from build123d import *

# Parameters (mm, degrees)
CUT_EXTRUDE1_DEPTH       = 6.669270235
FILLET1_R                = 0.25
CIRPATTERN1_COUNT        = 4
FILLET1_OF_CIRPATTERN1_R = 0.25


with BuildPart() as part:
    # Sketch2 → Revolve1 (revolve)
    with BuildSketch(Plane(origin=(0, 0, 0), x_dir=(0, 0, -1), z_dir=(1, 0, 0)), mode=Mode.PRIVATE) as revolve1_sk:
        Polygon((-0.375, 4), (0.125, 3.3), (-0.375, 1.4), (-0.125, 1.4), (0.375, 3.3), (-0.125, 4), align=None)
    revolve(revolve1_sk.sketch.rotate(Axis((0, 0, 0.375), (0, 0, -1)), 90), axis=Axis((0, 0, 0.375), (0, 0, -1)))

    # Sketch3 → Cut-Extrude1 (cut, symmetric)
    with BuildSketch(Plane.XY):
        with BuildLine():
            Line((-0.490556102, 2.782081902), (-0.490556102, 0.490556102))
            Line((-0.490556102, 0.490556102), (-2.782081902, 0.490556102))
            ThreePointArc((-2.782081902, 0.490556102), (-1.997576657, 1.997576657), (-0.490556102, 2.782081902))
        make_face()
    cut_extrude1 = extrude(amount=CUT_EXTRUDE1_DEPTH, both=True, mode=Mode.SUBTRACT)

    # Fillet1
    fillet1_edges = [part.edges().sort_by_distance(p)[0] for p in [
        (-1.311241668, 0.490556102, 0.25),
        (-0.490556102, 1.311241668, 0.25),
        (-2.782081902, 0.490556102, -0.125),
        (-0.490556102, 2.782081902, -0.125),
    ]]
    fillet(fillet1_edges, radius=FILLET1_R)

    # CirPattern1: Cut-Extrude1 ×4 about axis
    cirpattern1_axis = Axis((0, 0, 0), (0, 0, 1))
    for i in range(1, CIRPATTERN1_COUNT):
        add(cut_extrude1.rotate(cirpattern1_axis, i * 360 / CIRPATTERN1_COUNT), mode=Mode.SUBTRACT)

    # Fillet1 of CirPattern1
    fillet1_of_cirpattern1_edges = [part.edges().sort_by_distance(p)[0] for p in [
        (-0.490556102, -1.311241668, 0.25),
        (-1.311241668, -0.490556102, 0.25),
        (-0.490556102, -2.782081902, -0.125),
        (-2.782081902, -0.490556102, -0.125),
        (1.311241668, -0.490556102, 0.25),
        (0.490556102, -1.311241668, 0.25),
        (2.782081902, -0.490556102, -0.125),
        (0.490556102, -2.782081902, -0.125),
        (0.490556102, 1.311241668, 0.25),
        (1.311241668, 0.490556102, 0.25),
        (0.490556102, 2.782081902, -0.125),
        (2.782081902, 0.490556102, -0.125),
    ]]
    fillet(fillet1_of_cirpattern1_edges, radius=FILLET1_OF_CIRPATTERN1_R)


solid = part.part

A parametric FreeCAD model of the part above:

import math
import FreeCAD as App
import Part
import Sketcher
Q = App.Units.Quantity


def edges_at(feature, points):
    """Names of the edges that pass closest to the given points."""
    edges = feature.Shape.Edges
    near = lambda p: min(range(len(edges)), key=lambda i: edges[i].distToShape(Part.Vertex(*p))[0])
    return sorted({f"Edge{near(p) + 1}" for p in points})

doc = App.newDocument("Part")
body = doc.addObject("PartDesign::Body", "Body")

sketch1 = doc.addObject("Sketcher::SketchObject", "Sketch")
body.addObject(sketch1)
sketch1.AttachmentSupport = (doc.YZ_Plane, [""])
sketch1.MapMode = "FlatFace"
sketch1.addGeometry([
    Part.LineSegment(App.Vector(4, 0.38, 0), App.Vector(3.3, -0.12, 0)),
    Part.LineSegment(App.Vector(3.3, -0.12, 0), App.Vector(1.4, 0.38, 0)),
    Part.LineSegment(App.Vector(1.4, 0.38, 0), App.Vector(1.4, 0.12, 0)),
    Part.LineSegment(App.Vector(1.4, 0.12, 0), App.Vector(3.3, -0.38, 0)),
    Part.LineSegment(App.Vector(3.3, -0.38, 0), App.Vector(4, 0.12, 0)),
    Part.LineSegment(App.Vector(4, 0.12, 0), App.Vector(4, 0.38, 0)),
], False)
sketch1.addConstraint([
    Sketcher.Constraint("Coincident", 0, 2, 1, 1),
    Sketcher.Constraint("Coincident", 1, 2, 2, 1),
    Sketcher.Constraint("Coincident", 2, 2, 3, 1),
    Sketcher.Constraint("Coincident", 3, 2, 4, 1),
    Sketcher.Constraint("Coincident", 4, 2, 5, 1),
    Sketcher.Constraint("Coincident", 5, 2, 0, 1),
    Sketcher.Constraint("Vertical", 2),
    Sketcher.Constraint("Vertical", 5),
    Sketcher.Constraint("Parallel", 1, 3),
    Sketcher.Constraint("Parallel", 0, 4),
    Sketcher.Constraint("Horizontal", 2, 2, 4, 2),
    Sketcher.Constraint("Horizontal", 1, 2, 5, 2),
    Sketcher.Constraint("DistanceX", -1, 1, 4, 2, Q("4 mm")),
    Sketcher.Constraint("DistanceY", 2, 2, 2, 1, Q("0.25 mm")),
    Sketcher.Constraint("DistanceX", -1, 1, 0, 2, Q("3.3 mm")),
    Sketcher.Constraint("DistanceX", -1, 1, 1, 2, Q("1.4 mm")),
    Sketcher.Constraint("DistanceY", 0, 2, 1, 2, Q("0.5 mm")),
    Sketcher.Constraint("DistanceY", 0, 2, -1, 1, Q("0.125 mm")),
])
revolution = doc.addObject("PartDesign::Revolution", "Revolution")
body.addObject(revolution)
revolution.Profile = sketch1
revolution.ReferenceAxis = (sketch1, ["V_Axis"])
revolution.Angle = 360

sketch2 = doc.addObject("Sketcher::SketchObject", "Sketch001")
body.addObject(sketch2)
sketch2.AttachmentSupport = (doc.XY_Plane, [""])
sketch2.MapMode = "FlatFace"
sketch2.addGeometry([
    Part.LineSegment(App.Vector(-0.5, 0.5, 0), App.Vector(-0.5, 2.8, 0)),
    Part.ArcOfCircle(Part.Circle(App.Vector(0, 0, 0), App.Vector(0, 0, 1), 2.8), math.radians(100), math.radians(170)),
    Part.LineSegment(App.Vector(-2.8, 0.5, 0), App.Vector(-0.5, 0.5, 0)),
], False)
sketch2.addConstraint([
    Sketcher.Constraint("Coincident", 0, 2, 1, 1),
    Sketcher.Constraint("Coincident", 1, 2, 2, 1),
    Sketcher.Constraint("Coincident", 2, 2, 0, 1),
    Sketcher.Constraint("Vertical", 0),
    Sketcher.Constraint("Horizontal", 2),
    Sketcher.Constraint("Coincident", 1, 3, -1, 1),
    Sketcher.Constraint("Equal", 2, 0),
    Sketcher.Constraint("Radius", 1, Q("2.825 mm")),
    Sketcher.Constraint("DistanceX", 2, 1, 2, 2, Q("2.291526 mm")),
])
pocket1 = doc.addObject("PartDesign::Pocket", "Pocket")
body.addObject(pocket1)
pocket1.Profile = sketch2
pocket1.Length = 13.33854
pocket1.Midplane = True
doc.recompute()

fillet = doc.addObject("PartDesign::Fillet", "Fillet")
body.addObject(fillet)
fillet.Base = (pocket1, edges_at(pocket1, [
    (-1.311, 0.491, 0.25),
    (-0.491, 1.311, 0.25),
    (-2.782, 0.491, -0.125),
    (-0.491, 2.782, -0.125),
]))
fillet.Radius = 0.25
doc.recompute()

polarpattern = doc.addObject("PartDesign::PolarPattern", "PolarPattern")
body.addObject(polarpattern)
polarpattern.Originals = [pocket1]
polarpattern.Axis = (doc.Z_Axis, [""])
polarpattern.Angle = 360
polarpattern.Occurrences = 4
body.Tip = polarpattern
doc.recompute()

fillet2 = doc.addObject("PartDesign::Fillet", "Fillet001")
body.addObject(fillet2)
fillet2.Base = (polarpattern, edges_at(polarpattern, [
    (-0.491, -1.311, 0.25),
    (-1.311, -0.491, 0.25),
    (-0.491, -2.782, -0.125),
    (-2.782, -0.491, -0.125),
    (1.311, -0.491, 0.25),
    (0.491, -1.311, 0.25),
    (2.782, -0.491, -0.125),
    (0.491, -2.782, -0.125),
    (0.491, 1.311, 0.25),
    (1.311, 0.491, 0.25),
    (0.491, 2.782, -0.125),
    (2.782, 0.491, -0.125),
]))
fillet2.Radius = 0.25

doc.recompute()
